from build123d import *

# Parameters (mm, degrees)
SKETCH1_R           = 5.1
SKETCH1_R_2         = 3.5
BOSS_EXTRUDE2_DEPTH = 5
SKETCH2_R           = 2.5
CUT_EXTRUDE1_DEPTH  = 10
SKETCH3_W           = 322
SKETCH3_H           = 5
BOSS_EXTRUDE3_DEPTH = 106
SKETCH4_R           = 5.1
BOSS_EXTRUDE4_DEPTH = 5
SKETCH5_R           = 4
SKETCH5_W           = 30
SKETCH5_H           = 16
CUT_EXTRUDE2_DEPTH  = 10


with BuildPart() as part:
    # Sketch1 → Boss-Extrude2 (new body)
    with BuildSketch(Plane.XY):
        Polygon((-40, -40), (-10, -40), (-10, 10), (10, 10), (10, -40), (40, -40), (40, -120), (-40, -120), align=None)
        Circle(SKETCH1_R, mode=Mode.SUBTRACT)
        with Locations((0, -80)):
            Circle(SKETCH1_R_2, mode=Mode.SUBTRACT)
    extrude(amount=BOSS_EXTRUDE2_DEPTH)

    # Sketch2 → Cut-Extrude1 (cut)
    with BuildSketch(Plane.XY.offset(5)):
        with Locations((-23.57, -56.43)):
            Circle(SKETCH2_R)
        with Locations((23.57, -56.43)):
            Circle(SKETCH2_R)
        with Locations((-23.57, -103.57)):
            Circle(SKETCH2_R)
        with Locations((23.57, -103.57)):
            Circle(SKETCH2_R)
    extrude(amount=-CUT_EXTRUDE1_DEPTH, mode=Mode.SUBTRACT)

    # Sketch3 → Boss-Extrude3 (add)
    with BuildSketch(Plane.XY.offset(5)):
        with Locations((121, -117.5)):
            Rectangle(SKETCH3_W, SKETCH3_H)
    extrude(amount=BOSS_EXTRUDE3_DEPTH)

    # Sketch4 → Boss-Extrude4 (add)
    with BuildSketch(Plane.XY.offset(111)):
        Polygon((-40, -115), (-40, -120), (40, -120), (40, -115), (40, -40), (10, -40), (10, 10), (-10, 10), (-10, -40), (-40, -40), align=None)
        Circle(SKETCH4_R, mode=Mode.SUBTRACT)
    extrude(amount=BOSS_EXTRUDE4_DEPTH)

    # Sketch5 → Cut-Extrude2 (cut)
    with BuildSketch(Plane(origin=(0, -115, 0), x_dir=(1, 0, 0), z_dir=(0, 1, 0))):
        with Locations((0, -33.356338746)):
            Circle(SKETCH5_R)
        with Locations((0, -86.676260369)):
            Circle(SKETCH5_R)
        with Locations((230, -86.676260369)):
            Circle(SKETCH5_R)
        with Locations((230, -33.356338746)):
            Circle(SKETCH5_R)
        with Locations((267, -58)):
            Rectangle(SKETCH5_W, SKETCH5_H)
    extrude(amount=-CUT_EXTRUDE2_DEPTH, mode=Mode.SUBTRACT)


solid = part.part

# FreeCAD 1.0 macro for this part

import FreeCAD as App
import Part
import Sketcher
Q = App.Units.Quantity


def add_polygon(sketch, points):
    """Adds a closed chain of lines whose ends are joined by coincident constraints."""
    first, n = sketch.GeometryCount, len(points)
    for a, b in zip(points, points[1:] + points[:1]):
        sketch.addGeometry(Part.LineSegment(App.Vector(*a, 0), App.Vector(*b, 0)), False)
    for i in range(n):
        sketch.addConstraint(Sketcher.Constraint("Coincident", first + i, 2, first + (i + 1) % n, 1))

doc = App.newDocument("Part")
body = doc.addObject("PartDesign::Body", "Body")

# Sketch on XY plane
sketch1 = body.newObject("Sketcher::SketchObject", "Sketch")
sketch1.AttachmentSupport = (doc.getObject("XY_Plane"), [""])
sketch1.MapMode = "FlatFace"
add_polygon(sketch1, [(-10, -40), (-40, -40), (-40, -120), (40, -120), (40, -40), (10, -40), (10, 10), (-10, 10)])  # lines 0-7
sketch1.addGeometry(Part.Circle(App.Vector(0, -80, 0), App.Vector(0, 0, 1), 3.5), False)  # 8
sketch1.addGeometry(Part.Circle(App.Vector(0, 0, 0), App.Vector(0, 0, 1), 5.1), False)  # 9
sketch1.addConstraint(Sketcher.Constraint("Horizontal", 0))
sketch1.addConstraint(Sketcher.Constraint("Vertical", 1))
sketch1.addConstraint(Sketcher.Constraint("Horizontal", 2))
sketch1.addConstraint(Sketcher.Constraint("Vertical", 3))
sketch1.addConstraint(Sketcher.Constraint("Horizontal", 4))
sketch1.addConstraint(Sketcher.Constraint("Vertical", 5))
sketch1.addConstraint(Sketcher.Constraint("Horizontal", 6))
sketch1.addConstraint(Sketcher.Constraint("Vertical", 7))
sketch1.addConstraint(Sketcher.Constraint("Coincident", 9, 3, -1, 1))
sketch1.addConstraint(Sketcher.Constraint("Symmetric", 0, 2, 3, 2, -2))
sketch1.addConstraint(Sketcher.Constraint("PointOnObject", 8, 3, -2))
sketch1.addConstraint(Sketcher.Constraint("Equal", 0, 4))
sketch1.addConstraint(Sketcher.Constraint("Equal", 2, 1))
sketch1.addConstraint(Sketcher.Constraint("Diameter", 8, Q("7 mm")))
sketch1.addConstraint(Sketcher.Constraint("Diameter", 9, Q("10.2 mm")))
sketch1.addConstraint(Sketcher.Constraint("DistanceX", 0, 2, 0, 1, Q("30 mm")))
sketch1.addConstraint(Sketcher.Constraint("DistanceX", 2, 1, 2, 2, Q("80 mm")))
sketch1.addConstraint(Sketcher.Constraint("DistanceY", 5, 1, 5, 2, Q("50 mm")))
sketch1.addConstraint(Sketcher.Constraint("DistanceY", 8, 3, -1, 1, Q("80 mm")))
sketch1.addConstraint(Sketcher.Constraint("DistanceY", 0, 2, -1, 1, Q("40 mm")))
pad1 = body.newObject("PartDesign::Pad", "Pad")
pad1.Profile = sketch1
pad1.Length = 5

# Sketch on XY plane
sketch2 = body.newObject("Sketcher::SketchObject", "Sketch001")
sketch2.AttachmentSupport = (doc.getObject("XY_Plane"), [""])
sketch2.MapMode = "FlatFace"
sketch2.AttachmentOffset = App.Placement(App.Vector(0, 0, 5), App.Rotation())
sketch2.addGeometry(Part.Circle(App.Vector(-23.6, -56.4, 0), App.Vector(0, 0, 1), 2.5), False)
sketch2.addGeometry(Part.Circle(App.Vector(23.6, -56.4, 0), App.Vector(0, 0, 1), 2.5), False)
sketch2.addGeometry(Part.Circle(App.Vector(-23.6, -103.6, 0), App.Vector(0, 0, 1), 2.5), False)
sketch2.addGeometry(Part.Circle(App.Vector(23.6, -103.6, 0), App.Vector(0, 0, 1), 2.5), False)
sketch2.addConstraint(Sketcher.Constraint("Equal", 0, 1))
sketch2.addConstraint(Sketcher.Constraint("Equal", 1, 2))
sketch2.addConstraint(Sketcher.Constraint("Equal", 2, 3))
sketch2.addConstraint(Sketcher.Constraint("Symmetric", 0, 3, 1, 3, -2))
sketch2.addConstraint(Sketcher.Constraint("Symmetric", 2, 3, 3, 3, -2))
sketch2.addConstraint(Sketcher.Constraint("Vertical", 0, 3, 2, 3))
sketch2.addConstraint(Sketcher.Constraint("Diameter", 0, Q("5 mm")))
sketch2.addConstraint(Sketcher.Constraint("DistanceX", 0, 3, -1, 1, Q("23.57 mm")))
sketch2.addConstraint(Sketcher.Constraint("DistanceY", 0, 3, -1, 1, Q("56.43 mm")))
sketch2.addConstraint(Sketcher.Constraint("DistanceY", 2, 3, -1, 1, Q("103.57 mm")))
pocket1 = body.newObject("PartDesign::Pocket", "Pocket")
pocket1.Profile = sketch2
pocket1.Length = 10

# Sketch on XY plane
sketch3 = body.newObject("Sketcher::SketchObject", "Sketch002")
sketch3.AttachmentSupport = (doc.getObject("XY_Plane"), [""])
sketch3.MapMode = "FlatFace"
sketch3.AttachmentOffset = App.Placement(App.Vector(0, 0, 5), App.Rotation())
add_polygon(sketch3, [(-40, -115), (-40, -120), (282, -120), (282, -115)])  # lines 0-3
sketch3.addConstraint(Sketcher.Constraint("Vertical", 0))
sketch3.addConstraint(Sketcher.Constraint("Horizontal", 1))
sketch3.addConstraint(Sketcher.Constraint("Vertical", 2))
sketch3.addConstraint(Sketcher.Constraint("Horizontal", 3))
sketch3.addConstraint(Sketcher.Constraint("DistanceX", 1, 1, 1, 2, Q("322 mm")))
sketch3.addConstraint(Sketcher.Constraint("DistanceY", 0, 2, 0, 1, Q("5 mm")))
sketch3.addConstraint(Sketcher.Constraint("DistanceX", 0, 2, -1, 1, Q("40 mm")))
sketch3.addConstraint(Sketcher.Constraint("DistanceY", 0, 2, -1, 1, Q("120 mm")))
pad2 = body.newObject("PartDesign::Pad", "Pad001")
pad2.Profile = sketch3
pad2.Length = 106

# Sketch on XY plane
sketch4 = body.newObject("Sketcher::SketchObject", "Sketch003")
sketch4.AttachmentSupport = (doc.getObject("XY_Plane"), [""])
sketch4.MapMode = "FlatFace"
sketch4.AttachmentOffset = App.Placement(App.Vector(0, 0, 111), App.Rotation())
add_polygon(sketch4, [(-40, -120), (40, -120), (40, -40), (10, -40), (10, 10), (-10, 10), (-10, -40), (-40, -40)])  # lines 0-7
sketch4.addGeometry(Part.Circle(App.Vector(0, 0, 0), App.Vector(0, 0, 1), 5), False)  # 8
sketch4.addConstraint(Sketcher.Constraint("Horizontal", 0))
sketch4.addConstraint(Sketcher.Constraint("Vertical", 1))
sketch4.addConstraint(Sketcher.Constraint("Horizontal", 2))
sketch4.addConstraint(Sketcher.Constraint("Vertical", 3))
sketch4.addConstraint(Sketcher.Constraint("Horizontal", 4))
sketch4.addConstraint(Sketcher.Constraint("Vertical", 5))
sketch4.addConstraint(Sketcher.Constraint("Horizontal", 6))
sketch4.addConstraint(Sketcher.Constraint("Vertical", 7))
sketch4.addConstraint(Sketcher.Constraint("Coincident", 8, 3, -1, 1))
sketch4.addConstraint(Sketcher.Constraint("Symmetric", 2, 2, 5, 2, -2))
sketch4.addConstraint(Sketcher.Constraint("Equal", 2, 6))
sketch4.addConstraint(Sketcher.Constraint("Equal", 0, 1))
sketch4.addConstraint(Sketcher.Constraint("Diameter", 8, Q("10.2 mm")))
sketch4.addConstraint(Sketcher.Constraint("DistanceX", 0, 1, 0, 2, Q("80 mm")))
sketch4.addConstraint(Sketcher.Constraint("DistanceX", 2, 2, 2, 1, Q("30 mm")))
sketch4.addConstraint(Sketcher.Constraint("DistanceY", 3, 1, 3, 2, Q("50 mm")))
sketch4.addConstraint(Sketcher.Constraint("DistanceY", 0, 2, -1, 1, Q("120 mm")))
pad3 = body.newObject("PartDesign::Pad", "Pad002")
pad3.Profile = sketch4
pad3.Length = 5

# Sketch on XZ plane
sketch5 = body.newObject("Sketcher::SketchObject", "Sketch004")
sketch5.AttachmentSupport = (doc.getObject("XZ_Plane"), [""])
sketch5.MapMode = "FlatFace"
sketch5.AttachmentOffset = App.Placement(App.Vector(0, 0, 115), App.Rotation())
sketch5.addGeometry(Part.Circle(App.Vector(0, 33.4, 0), App.Vector(0, 0, 1), 4), False)  # 0
sketch5.addGeometry(Part.Circle(App.Vector(0, 86.7, 0), App.Vector(0, 0, 1), 4), False)  # 1
sketch5.addGeometry(Part.Circle(App.Vector(230, 86.7, 0), App.Vector(0, 0, 1), 4), False)  # 2
sketch5.addGeometry(Part.Circle(App.Vector(230, 33.4, 0), App.Vector(0, 0, 1), 4), False)  # 3
add_polygon(sketch5, [(252, 50), (252, 66), (282, 66), (282, 50)])  # lines 4-7
sketch5.addConstraint(Sketcher.Constraint("Vertical", 4))
sketch5.addConstraint(Sketcher.Constraint("Horizontal", 5))
sketch5.addConstraint(Sketcher.Constraint("Vertical", 6))
sketch5.addConstraint(Sketcher.Constraint("Horizontal", 7))
sketch5.addConstraint(Sketcher.Constraint("Equal", 0, 1))
sketch5.addConstraint(Sketcher.Constraint("Equal", 1, 2))
sketch5.addConstraint(Sketcher.Constraint("Equal", 2, 3))
sketch5.addConstraint(Sketcher.Constraint("PointOnObject", 0, 3, -2))
sketch5.addConstraint(Sketcher.Constraint("PointOnObject", 1, 3, -2))
sketch5.addConstraint(Sketcher.Constraint("Horizontal", 1, 3, 2, 3))
sketch5.addConstraint(Sketcher.Constraint("Horizontal", 0, 3, 3, 3))
sketch5.addConstraint(Sketcher.Constraint("Vertical", 2, 3, 3, 3))
sketch5.addConstraint(Sketcher.Constraint("Diameter", 0, Q("8 mm")))
sketch5.addConstraint(Sketcher.Constraint("DistanceX", 5, 1, 5, 2, Q("30 mm")))
sketch5.addConstraint(Sketcher.Constraint("DistanceY", 4, 1, 4, 2, Q("16 mm")))
sketch5.addConstraint(Sketcher.Constraint("DistanceX", -1, 1, 2, 3, Q("230 mm")))
sketch5.addConstraint(Sketcher.Constraint("DistanceX", -1, 1, 4, 2, Q("252 mm")))
sketch5.addConstraint(Sketcher.Constraint("DistanceY", -1, 1, 4, 2, Q("66 mm")))
sketch5.addConstraint(Sketcher.Constraint("DistanceY", -1, 1, 0, 3, Q("33.356339 mm")))
sketch5.addConstraint(Sketcher.Constraint("DistanceY", -1, 1, 1, 3, Q("86.67626 mm")))
pocket2 = body.newObject("PartDesign::Pocket", "Pocket001")
pocket2.Profile = sketch5
pocket2.Length = 10
pocket2.Reversed = True

doc.recompute()
